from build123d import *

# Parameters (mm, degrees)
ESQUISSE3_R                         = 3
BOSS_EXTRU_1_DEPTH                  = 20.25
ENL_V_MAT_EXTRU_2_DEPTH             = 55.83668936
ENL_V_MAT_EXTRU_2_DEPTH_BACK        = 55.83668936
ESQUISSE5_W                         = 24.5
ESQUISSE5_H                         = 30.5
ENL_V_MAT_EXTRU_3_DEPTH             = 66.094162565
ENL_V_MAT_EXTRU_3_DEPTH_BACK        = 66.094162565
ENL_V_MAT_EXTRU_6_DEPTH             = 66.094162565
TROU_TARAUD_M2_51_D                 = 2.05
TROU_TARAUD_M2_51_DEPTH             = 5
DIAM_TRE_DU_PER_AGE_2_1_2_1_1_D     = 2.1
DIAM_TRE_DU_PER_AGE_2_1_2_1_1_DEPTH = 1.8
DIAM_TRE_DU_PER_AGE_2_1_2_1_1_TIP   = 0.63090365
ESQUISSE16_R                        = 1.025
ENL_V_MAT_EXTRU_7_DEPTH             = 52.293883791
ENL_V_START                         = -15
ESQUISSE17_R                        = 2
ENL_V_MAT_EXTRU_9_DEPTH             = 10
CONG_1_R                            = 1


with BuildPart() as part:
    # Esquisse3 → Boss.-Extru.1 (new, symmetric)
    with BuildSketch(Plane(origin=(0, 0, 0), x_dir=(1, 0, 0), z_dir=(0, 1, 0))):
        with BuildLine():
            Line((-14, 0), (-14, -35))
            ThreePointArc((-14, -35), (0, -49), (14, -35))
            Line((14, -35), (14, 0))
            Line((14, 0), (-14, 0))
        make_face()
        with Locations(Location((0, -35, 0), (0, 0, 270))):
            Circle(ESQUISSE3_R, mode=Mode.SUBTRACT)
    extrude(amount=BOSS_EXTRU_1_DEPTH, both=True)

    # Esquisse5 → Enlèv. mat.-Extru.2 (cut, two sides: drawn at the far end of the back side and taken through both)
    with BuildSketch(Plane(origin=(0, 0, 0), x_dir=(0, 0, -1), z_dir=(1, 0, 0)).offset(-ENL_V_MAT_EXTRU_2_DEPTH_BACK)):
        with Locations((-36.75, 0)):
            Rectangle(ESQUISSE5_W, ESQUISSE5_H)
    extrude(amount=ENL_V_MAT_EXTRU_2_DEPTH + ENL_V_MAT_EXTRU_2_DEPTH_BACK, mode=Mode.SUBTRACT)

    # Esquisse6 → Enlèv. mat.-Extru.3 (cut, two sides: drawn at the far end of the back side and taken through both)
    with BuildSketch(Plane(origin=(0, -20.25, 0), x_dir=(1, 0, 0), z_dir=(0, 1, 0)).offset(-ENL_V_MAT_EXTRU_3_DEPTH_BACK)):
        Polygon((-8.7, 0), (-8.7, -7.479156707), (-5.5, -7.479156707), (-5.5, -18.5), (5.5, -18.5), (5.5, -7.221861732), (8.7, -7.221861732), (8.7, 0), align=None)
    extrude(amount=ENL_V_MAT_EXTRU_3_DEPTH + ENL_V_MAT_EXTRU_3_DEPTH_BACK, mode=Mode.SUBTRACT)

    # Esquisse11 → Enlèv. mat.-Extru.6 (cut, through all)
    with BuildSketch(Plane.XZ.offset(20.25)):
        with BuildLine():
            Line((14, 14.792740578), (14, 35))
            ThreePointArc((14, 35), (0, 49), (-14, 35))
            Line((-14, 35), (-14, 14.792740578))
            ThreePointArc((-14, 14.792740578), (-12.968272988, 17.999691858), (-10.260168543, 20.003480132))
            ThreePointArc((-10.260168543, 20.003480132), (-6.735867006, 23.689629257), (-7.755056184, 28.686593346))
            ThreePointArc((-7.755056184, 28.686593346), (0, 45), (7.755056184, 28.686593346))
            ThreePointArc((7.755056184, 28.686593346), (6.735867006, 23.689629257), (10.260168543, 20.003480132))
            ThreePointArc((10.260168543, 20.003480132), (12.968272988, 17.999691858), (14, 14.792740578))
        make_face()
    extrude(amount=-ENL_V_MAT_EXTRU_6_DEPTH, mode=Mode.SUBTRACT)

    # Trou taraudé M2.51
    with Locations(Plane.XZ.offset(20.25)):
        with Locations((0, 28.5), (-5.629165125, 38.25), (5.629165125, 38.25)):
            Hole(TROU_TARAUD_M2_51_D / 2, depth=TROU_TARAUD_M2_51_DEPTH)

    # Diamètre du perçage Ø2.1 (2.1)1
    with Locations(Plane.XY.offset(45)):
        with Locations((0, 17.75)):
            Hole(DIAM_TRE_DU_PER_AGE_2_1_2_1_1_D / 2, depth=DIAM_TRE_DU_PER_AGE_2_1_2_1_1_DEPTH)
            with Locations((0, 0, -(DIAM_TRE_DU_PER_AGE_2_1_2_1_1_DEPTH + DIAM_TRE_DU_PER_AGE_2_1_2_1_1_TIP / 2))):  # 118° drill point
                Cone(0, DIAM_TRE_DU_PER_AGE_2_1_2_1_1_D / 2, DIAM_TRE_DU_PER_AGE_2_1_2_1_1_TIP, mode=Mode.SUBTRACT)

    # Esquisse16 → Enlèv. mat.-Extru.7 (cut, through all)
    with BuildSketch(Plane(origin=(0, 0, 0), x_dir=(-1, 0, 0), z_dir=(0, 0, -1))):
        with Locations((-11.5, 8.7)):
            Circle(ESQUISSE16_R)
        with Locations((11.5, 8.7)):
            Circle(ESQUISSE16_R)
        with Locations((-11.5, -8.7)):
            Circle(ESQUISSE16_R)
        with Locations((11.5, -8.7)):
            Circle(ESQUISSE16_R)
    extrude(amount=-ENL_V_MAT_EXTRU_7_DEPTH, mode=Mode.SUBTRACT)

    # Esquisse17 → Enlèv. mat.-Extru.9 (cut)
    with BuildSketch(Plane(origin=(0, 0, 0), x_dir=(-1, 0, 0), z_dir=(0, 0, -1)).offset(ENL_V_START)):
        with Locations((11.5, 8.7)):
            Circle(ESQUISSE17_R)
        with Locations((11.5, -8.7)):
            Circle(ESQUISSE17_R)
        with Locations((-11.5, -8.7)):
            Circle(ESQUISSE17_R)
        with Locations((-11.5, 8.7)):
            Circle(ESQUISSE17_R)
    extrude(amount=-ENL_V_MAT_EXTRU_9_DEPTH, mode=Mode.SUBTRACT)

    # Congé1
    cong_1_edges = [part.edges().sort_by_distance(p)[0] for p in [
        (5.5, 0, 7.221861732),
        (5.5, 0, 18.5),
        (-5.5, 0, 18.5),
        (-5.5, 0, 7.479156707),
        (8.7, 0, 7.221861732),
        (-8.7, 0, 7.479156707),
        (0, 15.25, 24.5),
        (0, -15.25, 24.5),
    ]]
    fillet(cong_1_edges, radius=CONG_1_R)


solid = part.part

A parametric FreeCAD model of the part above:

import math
import FreeCAD as App
import Part
import Sketcher

V = App.Vector
Q = App.Units.Quantity


def edges_at(feature, points):
    """Names of the edges that pass closest to the given points."""
    edges = feature.Shape.Edges
    near = lambda p: min(range(len(edges)), key=lambda i: edges[i].distToShape(Part.Vertex(*p))[0])
    return sorted({f"Edge{near(p) + 1}" for p in points})


def add_polygon(sketch, points):
    """Adds a closed chain of lines whose ends are joined by coincident constraints."""
    first, n = sketch.GeometryCount, len(points)
    for a, b in zip(points, points[1:] + points[:1]):
        sketch.addGeometry(Part.LineSegment(App.Vector(*a, 0), App.Vector(*b, 0)), False)
    for i in range(n):
        sketch.addConstraint(Sketcher.Constraint("Coincident", first + i, 2, first + (i + 1) % n, 1))

doc = App.newDocument("Part")
body = doc.addObject("PartDesign::Body", "Body")

# Sketch on XZ plane
sketch1 = body.newObject("Sketcher::SketchObject", "Sketch")
sketch1.AttachmentSupport = (doc.getObject("XZ_Plane"), [""])
sketch1.MapMode = "FlatFace"
sketch1.addGeometry([
    Part.LineSegment(V(-14, 0, 0), V(-14, 35, 0)),  # 0
    Part.ArcOfCircle(Part.Circle(V(0, 35, 0), V(0, 0, 1), 14), math.radians(0), math.radians(180)),  # 1
    Part.LineSegment(V(14, 35, 0), V(14, 0, 0)),  # 2
    Part.LineSegment(V(14, 0, 0), V(-14, 0, 0)),  # 3
    Part.Circle(V(0, 35, 0), V(0, 0, 1), 3),  # 4
], False)
sketch1.addConstraint([
    Sketcher.Constraint("Tangent", 0, 2, 1, 2),
    Sketcher.Constraint("Tangent", 1, 1, 2, 1),
    Sketcher.Constraint("Coincident", 2, 2, 3, 1),
    Sketcher.Constraint("Coincident", 3, 2, 0, 1),
    Sketcher.Constraint("Vertical", 0),
    Sketcher.Constraint("Vertical", 2),
    Sketcher.Constraint("Horizontal", 3),
    Sketcher.Constraint("Coincident", 4, 3, 1, 3),
    Sketcher.Constraint("Symmetric", 2, 2, 3, 2, -1, 1),
    Sketcher.Constraint("Diameter", 4, Q("6 mm")),
    Sketcher.Constraint("Radius", 1, Q("14 mm")),
    Sketcher.Constraint("DistanceY", 0, 1, 0, 2, Q("35 mm")),
])
pad1 = body.newObject("PartDesign::Pad", "Pad")
pad1.Profile = sketch1
pad1.Length = 40.5
pad1.Midplane = True

# Sketch on YZ plane
sketch2 = body.newObject("Sketcher::SketchObject", "Sketch001")
sketch2.AttachmentSupport = (doc.getObject("YZ_Plane"), [""])
sketch2.MapMode = "FlatFace"
add_polygon(sketch2, [(15.25, 49), (-15.25, 49), (-15.25, 24.5), (15.25, 24.5)])  # lines 0-3
sketch2.addConstraint([
    Sketcher.Constraint("Horizontal", 0),
    Sketcher.Constraint("Vertical", 1),
    Sketcher.Constraint("Horizontal", 2),
    Sketcher.Constraint("Vertical", 3),
    Sketcher.Constraint("DistanceX", 0, 2, 0, 1, Q("30.5 mm")),
    Sketcher.Constraint("DistanceY", 1, 2, 1, 1, Q("24.5 mm")),
    Sketcher.Constraint("DistanceY", -1, 1, 0, 2, Q("49 mm")),
    Sketcher.Constraint("DistanceX", 0, 2, -1, 1, Q("15.25 mm")),
])
pocket1 = body.newObject("PartDesign::Pocket", "Pocket")
pocket1.Profile = sketch2
pocket1.Type = "ThroughAll"
pocket1.Midplane = True

# Sketch on XZ plane
sketch3 = body.newObject("Sketcher::SketchObject", "Sketch002")
sketch3.AttachmentSupport = (doc.getObject("XZ_Plane"), [""])
sketch3.MapMode = "FlatFace"
sketch3.AttachmentOffset = App.Placement(V(0, 0, 20.25), App.Rotation())
add_polygon(sketch3, [(-8.7, 0), (-8.7, 7.479157), (-5.5, 7.479157), (-5.5, 18.5), (5.5, 18.5), (5.5, 7.221862), (8.7, 7.221862), (8.7, 0)])  # lines 0-7
sketch3.addConstraint([
    Sketcher.Constraint("Vertical", 0),
    Sketcher.Constraint("Horizontal", 1),
    Sketcher.Constraint("Vertical", 2),
    Sketcher.Constraint("Horizontal", 3),
    Sketcher.Constraint("Vertical", 4),
    Sketcher.Constraint("Horizontal", 5),
    Sketcher.Constraint("Vertical", 6),
    Sketcher.Constraint("Horizontal", 7),
    Sketcher.Constraint("Symmetric", 6, 2, 7, 2, -1, 1),
    Sketcher.Constraint("Equal", 1, 5),
    Sketcher.Constraint("DistanceX", 3, 1, 3, 2, Q("11 mm")),
    Sketcher.Constraint("DistanceX", 1, 1, 1, 2, Q("3.2 mm")),
    Sketcher.Constraint("DistanceY", -1, 1, 2, 2, Q("18.5 mm")),
    Sketcher.Constraint("DistanceY", 4, 2, 4, 1, Q("11.278138 mm")),
    Sketcher.Constraint("DistanceY", 0, 1, 0, 2, Q("7.479157 mm")),
])
pocket2 = body.newObject("PartDesign::Pocket", "Pocket001")
pocket2.Profile = sketch3
pocket2.Type = "ThroughAll"
pocket2.Midplane = True

# Sketch on XZ plane
sketch4 = body.newObject("Sketcher::SketchObject", "Sketch003")
sketch4.AttachmentSupport = (doc.getObject("XZ_Plane"), [""])
sketch4.MapMode = "FlatFace"
sketch4.AttachmentOffset = App.Placement(V(0, 0, 20.25), App.Rotation())
sketch4.addGeometry([
    Part.LineSegment(V(14, 14.792741, 0), V(14, 35, 0)),  # 0
    Part.ArcOfCircle(Part.Circle(V(0, 35, 0), V(0, 0, 1), 14), math.radians(0), math.radians(180)),  # 1
    Part.LineSegment(V(-14, 35, 0), V(-14, 14.792741, 0)),  # 2
    Part.ArcOfCircle(Part.Circle(V(-8.5, 14.792741, 0), V(0, 0, 1), 5.5), math.radians(108.664778), math.radians(180)),  # 3
    Part.ArcOfCircle(Part.Circle(V(-12.020337, 25.21422, 0), V(0, 0, 1), 5.5), math.radians(-71.335222), math.radians(39.149104)),  # 4
    Part.ArcOfCircle(Part.Circle(V(0, 35, 0), V(0, 0, 1), 10), math.radians(-39.149104), math.radians(219.149104)),  # 5
    Part.ArcOfCircle(Part.Circle(V(12.020337, 25.21422, 0), V(0, 0, 1), 5.5), math.radians(140.850896), math.radians(251.335222)),  # 6
    Part.ArcOfCircle(Part.Circle(V(8.5, 14.792741, 0), V(0, 0, 1), 5.5), math.radians(0), math.radians(71.335222)),  # 7
], False)
sketch4.addConstraint([
    Sketcher.Constraint("Tangent", 0, 2, 1, 1),
    Sketcher.Constraint("Tangent", 1, 2, 2, 1),
    Sketcher.Constraint("Tangent", 2, 2, 3, 2),
    Sketcher.Constraint("Tangent", 3, 1, 4, 1),
    Sketcher.Constraint("Tangent", 4, 2, 5, 2),
    Sketcher.Constraint("Tangent", 5, 1, 6, 1),
    Sketcher.Constraint("Tangent", 6, 2, 7, 2),
    Sketcher.Constraint("Tangent", 7, 1, 0, 1),
    Sketcher.Constraint("Vertical", 0),
    Sketcher.Constraint("Vertical", 2),
    Sketcher.Constraint("Coincident", 5, 3, 1, 3),
    Sketcher.Constraint("Equal", 3, 4),
    Sketcher.Constraint("Equal", 4, 6),
    Sketcher.Constraint("Equal", 6, 7),
    Sketcher.Constraint("Symmetric", 4, 3, 6, 3, -2),
    Sketcher.Constraint("Radius", 1, Q("14 mm")),
    Sketcher.Constraint("Radius", 5, Q("10 mm")),
    Sketcher.Constraint("Radius", 3, Q("5.5 mm")),
    Sketcher.Constraint("DistanceY", -1, 1, 1, 3, Q("35 mm")),
    Sketcher.Constraint("DistanceY", 0, 1, 0, 2, Q("20.207259 mm")),
])
pocket3 = body.newObject("PartDesign::Pocket", "Pocket002")
pocket3.Profile = sketch4
pocket3.Type = "ThroughAll"

# Sketch on XZ plane
sketch5 = body.newObject("Sketcher::SketchObject", "Sketch004")
sketch5.AttachmentSupport = (doc.getObject("XZ_Plane"), [""])
sketch5.MapMode = "FlatFace"
sketch5.AttachmentOffset = App.Placement(V(0, 0, 20.25), App.Rotation())
sketch5.addGeometry([
    Part.Circle(V(0, 28.5, 0), V(0, 0, 1), 1.025),
    Part.Circle(V(-5.629165, 38.25, 0), V(0, 0, 1), 1.025),
    Part.Circle(V(5.629165, 38.25, 0), V(0, 0, 1), 1.025),
], False)
sketch5.addConstraint([
    Sketcher.Constraint("Equal", 0, 1),
    Sketcher.Constraint("Equal", 1, 2),
    Sketcher.Constraint("Symmetric", 1, 3, 2, 3, -2),
    Sketcher.Constraint("PointOnObject", 0, 3, -2),
    Sketcher.Constraint("Diameter", 0, Q("2.05 mm")),
    Sketcher.Constraint("DistanceY", -1, 1, 0, 3, Q("28.5 mm")),
    Sketcher.Constraint("DistanceY", -1, 1, 1, 3, Q("38.25 mm")),
    Sketcher.Constraint("DistanceX", 1, 3, 2, 3, Q("11.25833 mm")),
])
doc.recompute()
hole = body.newObject("PartDesign::Hole", "Hole")
hole.Profile = sketch5
hole.ThreadType = "None"
hole.Diameter = 2.05
hole.DepthType = "Dimension"
hole.Depth = 5
hole.DrillPoint = "Flat"

# Sketch on XY plane
sketch6 = body.newObject("Sketcher::SketchObject", "Sketch005")
sketch6.AttachmentSupport = (doc.getObject("XY_Plane"), [""])
sketch6.MapMode = "FlatFace"
sketch6.AttachmentOffset = App.Placement(V(0, 0, 45), App.Rotation())
sketch6.addGeometry(Part.Circle(V(0, 17.75, 0), V(0, 0, 1), 1.05), False)
sketch6.addConstraint([
    Sketcher.Constraint("PointOnObject", 0, 3, -2),
    Sketcher.Constraint("Diameter", 0, Q("2.1 mm")),
    Sketcher.Constraint("DistanceY", -1, 1, 0, 3, Q("17.75 mm")),
])
doc.recompute()
hole2 = body.newObject("PartDesign::Hole", "Hole001")
hole2.Profile = sketch6
hole2.ThreadType = "None"
hole2.Diameter = 2.1
hole2.DepthType = "Dimension"
hole2.Depth = 1.8
hole2.DrillPoint = "Angled"
hole2.DrillPointAngle = 118

# Sketch on XY plane
sketch7 = body.newObject("Sketcher::SketchObject", "Sketch006")
sketch7.AttachmentSupport = (doc.getObject("XY_Plane"), [""])
sketch7.MapMode = "FlatFace"
sketch7.addGeometry([
    Part.Circle(V(11.5, 8.7, 0), V(0, 0, 1), 1.025),
    Part.Circle(V(-11.5, 8.7, 0), V(0, 0, 1), 1.025),
    Part.Circle(V(11.5, -8.7, 0), V(0, 0, 1), 1.025),
    Part.Circle(V(-11.5, -8.7, 0), V(0, 0, 1), 1.025),
], False)
sketch7.addConstraint([
    Sketcher.Constraint("Equal", 0, 1),
    Sketcher.Constraint("Equal", 1, 2),
    Sketcher.Constraint("Equal", 2, 3),
    Sketcher.Constraint("Symmetric", 1, 3, 2, 3, -1, 1),
    Sketcher.Constraint("Symmetric", 0, 3, 3, 3, -1, 1),
    Sketcher.Constraint("Symmetric", 0, 3, 1, 3, -2),
    Sketcher.Constraint("Diameter", 0, Q("2.05 mm")),
    Sketcher.Constraint("DistanceX", 1, 3, 0, 3, Q("23 mm")),
    Sketcher.Constraint("DistanceY", -1, 1, 0, 3, Q("8.7 mm")),
])
pocket4 = body.newObject("PartDesign::Pocket", "Pocket003")
pocket4.Profile = sketch7
pocket4.Type = "ThroughAll"
pocket4.Reversed = True

# Sketch on XY plane
sketch8 = body.newObject("Sketcher::SketchObject", "Sketch007")
sketch8.AttachmentSupport = (doc.getObject("XY_Plane"), [""])
sketch8.MapMode = "FlatFace"
sketch8.AttachmentOffset = App.Placement(V(0, 0, 15), App.Rotation())
sketch8.addGeometry([
    Part.Circle(V(-11.5, 8.7, 0), V(0, 0, 1), 2),
    Part.Circle(V(-11.5, -8.7, 0), V(0, 0, 1), 2),
    Part.Circle(V(11.5, -8.7, 0), V(0, 0, 1), 2),
    Part.Circle(V(11.5, 8.7, 0), V(0, 0, 1), 2),
], False)
sketch8.addConstraint([
    Sketcher.Constraint("Equal", 0, 1),
    Sketcher.Constraint("Equal", 1, 2),
    Sketcher.Constraint("Equal", 2, 3),
    Sketcher.Constraint("Symmetric", 0, 3, 2, 3, -1, 1),
    Sketcher.Constraint("Symmetric", 1, 3, 3, 3, -1, 1),
    Sketcher.Constraint("Symmetric", 1, 3, 2, 3, -2),
    Sketcher.Constraint("Diameter", 0, Q("4 mm")),
    Sketcher.Constraint("DistanceX", 1, 3, 2, 3, Q("23 mm")),
    Sketcher.Constraint("DistanceY", -1, 1, 0, 3, Q("8.7 mm")),
])
pocket5 = body.newObject("PartDesign::Pocket", "Pocket004")
pocket5.Profile = sketch8
pocket5.Length = 10
pocket5.Reversed = True
doc.recompute()

fillet = body.newObject("PartDesign::Fillet", "Fillet")
fillet.Base = (pocket5, edges_at(pocket5, [
    (5.5, 0, 7.222),
    (5.5, 0, 18.5),
    (-5.5, 0, 18.5),
    (-5.5, 0, 7.479),
    (8.7, 0, 7.222),
    (-8.7, 0, 7.479),
    (0, 15.25, 24.5),
    (0, -15.25, 24.5),
]))
fillet.Radius = 1

doc.recompute()
